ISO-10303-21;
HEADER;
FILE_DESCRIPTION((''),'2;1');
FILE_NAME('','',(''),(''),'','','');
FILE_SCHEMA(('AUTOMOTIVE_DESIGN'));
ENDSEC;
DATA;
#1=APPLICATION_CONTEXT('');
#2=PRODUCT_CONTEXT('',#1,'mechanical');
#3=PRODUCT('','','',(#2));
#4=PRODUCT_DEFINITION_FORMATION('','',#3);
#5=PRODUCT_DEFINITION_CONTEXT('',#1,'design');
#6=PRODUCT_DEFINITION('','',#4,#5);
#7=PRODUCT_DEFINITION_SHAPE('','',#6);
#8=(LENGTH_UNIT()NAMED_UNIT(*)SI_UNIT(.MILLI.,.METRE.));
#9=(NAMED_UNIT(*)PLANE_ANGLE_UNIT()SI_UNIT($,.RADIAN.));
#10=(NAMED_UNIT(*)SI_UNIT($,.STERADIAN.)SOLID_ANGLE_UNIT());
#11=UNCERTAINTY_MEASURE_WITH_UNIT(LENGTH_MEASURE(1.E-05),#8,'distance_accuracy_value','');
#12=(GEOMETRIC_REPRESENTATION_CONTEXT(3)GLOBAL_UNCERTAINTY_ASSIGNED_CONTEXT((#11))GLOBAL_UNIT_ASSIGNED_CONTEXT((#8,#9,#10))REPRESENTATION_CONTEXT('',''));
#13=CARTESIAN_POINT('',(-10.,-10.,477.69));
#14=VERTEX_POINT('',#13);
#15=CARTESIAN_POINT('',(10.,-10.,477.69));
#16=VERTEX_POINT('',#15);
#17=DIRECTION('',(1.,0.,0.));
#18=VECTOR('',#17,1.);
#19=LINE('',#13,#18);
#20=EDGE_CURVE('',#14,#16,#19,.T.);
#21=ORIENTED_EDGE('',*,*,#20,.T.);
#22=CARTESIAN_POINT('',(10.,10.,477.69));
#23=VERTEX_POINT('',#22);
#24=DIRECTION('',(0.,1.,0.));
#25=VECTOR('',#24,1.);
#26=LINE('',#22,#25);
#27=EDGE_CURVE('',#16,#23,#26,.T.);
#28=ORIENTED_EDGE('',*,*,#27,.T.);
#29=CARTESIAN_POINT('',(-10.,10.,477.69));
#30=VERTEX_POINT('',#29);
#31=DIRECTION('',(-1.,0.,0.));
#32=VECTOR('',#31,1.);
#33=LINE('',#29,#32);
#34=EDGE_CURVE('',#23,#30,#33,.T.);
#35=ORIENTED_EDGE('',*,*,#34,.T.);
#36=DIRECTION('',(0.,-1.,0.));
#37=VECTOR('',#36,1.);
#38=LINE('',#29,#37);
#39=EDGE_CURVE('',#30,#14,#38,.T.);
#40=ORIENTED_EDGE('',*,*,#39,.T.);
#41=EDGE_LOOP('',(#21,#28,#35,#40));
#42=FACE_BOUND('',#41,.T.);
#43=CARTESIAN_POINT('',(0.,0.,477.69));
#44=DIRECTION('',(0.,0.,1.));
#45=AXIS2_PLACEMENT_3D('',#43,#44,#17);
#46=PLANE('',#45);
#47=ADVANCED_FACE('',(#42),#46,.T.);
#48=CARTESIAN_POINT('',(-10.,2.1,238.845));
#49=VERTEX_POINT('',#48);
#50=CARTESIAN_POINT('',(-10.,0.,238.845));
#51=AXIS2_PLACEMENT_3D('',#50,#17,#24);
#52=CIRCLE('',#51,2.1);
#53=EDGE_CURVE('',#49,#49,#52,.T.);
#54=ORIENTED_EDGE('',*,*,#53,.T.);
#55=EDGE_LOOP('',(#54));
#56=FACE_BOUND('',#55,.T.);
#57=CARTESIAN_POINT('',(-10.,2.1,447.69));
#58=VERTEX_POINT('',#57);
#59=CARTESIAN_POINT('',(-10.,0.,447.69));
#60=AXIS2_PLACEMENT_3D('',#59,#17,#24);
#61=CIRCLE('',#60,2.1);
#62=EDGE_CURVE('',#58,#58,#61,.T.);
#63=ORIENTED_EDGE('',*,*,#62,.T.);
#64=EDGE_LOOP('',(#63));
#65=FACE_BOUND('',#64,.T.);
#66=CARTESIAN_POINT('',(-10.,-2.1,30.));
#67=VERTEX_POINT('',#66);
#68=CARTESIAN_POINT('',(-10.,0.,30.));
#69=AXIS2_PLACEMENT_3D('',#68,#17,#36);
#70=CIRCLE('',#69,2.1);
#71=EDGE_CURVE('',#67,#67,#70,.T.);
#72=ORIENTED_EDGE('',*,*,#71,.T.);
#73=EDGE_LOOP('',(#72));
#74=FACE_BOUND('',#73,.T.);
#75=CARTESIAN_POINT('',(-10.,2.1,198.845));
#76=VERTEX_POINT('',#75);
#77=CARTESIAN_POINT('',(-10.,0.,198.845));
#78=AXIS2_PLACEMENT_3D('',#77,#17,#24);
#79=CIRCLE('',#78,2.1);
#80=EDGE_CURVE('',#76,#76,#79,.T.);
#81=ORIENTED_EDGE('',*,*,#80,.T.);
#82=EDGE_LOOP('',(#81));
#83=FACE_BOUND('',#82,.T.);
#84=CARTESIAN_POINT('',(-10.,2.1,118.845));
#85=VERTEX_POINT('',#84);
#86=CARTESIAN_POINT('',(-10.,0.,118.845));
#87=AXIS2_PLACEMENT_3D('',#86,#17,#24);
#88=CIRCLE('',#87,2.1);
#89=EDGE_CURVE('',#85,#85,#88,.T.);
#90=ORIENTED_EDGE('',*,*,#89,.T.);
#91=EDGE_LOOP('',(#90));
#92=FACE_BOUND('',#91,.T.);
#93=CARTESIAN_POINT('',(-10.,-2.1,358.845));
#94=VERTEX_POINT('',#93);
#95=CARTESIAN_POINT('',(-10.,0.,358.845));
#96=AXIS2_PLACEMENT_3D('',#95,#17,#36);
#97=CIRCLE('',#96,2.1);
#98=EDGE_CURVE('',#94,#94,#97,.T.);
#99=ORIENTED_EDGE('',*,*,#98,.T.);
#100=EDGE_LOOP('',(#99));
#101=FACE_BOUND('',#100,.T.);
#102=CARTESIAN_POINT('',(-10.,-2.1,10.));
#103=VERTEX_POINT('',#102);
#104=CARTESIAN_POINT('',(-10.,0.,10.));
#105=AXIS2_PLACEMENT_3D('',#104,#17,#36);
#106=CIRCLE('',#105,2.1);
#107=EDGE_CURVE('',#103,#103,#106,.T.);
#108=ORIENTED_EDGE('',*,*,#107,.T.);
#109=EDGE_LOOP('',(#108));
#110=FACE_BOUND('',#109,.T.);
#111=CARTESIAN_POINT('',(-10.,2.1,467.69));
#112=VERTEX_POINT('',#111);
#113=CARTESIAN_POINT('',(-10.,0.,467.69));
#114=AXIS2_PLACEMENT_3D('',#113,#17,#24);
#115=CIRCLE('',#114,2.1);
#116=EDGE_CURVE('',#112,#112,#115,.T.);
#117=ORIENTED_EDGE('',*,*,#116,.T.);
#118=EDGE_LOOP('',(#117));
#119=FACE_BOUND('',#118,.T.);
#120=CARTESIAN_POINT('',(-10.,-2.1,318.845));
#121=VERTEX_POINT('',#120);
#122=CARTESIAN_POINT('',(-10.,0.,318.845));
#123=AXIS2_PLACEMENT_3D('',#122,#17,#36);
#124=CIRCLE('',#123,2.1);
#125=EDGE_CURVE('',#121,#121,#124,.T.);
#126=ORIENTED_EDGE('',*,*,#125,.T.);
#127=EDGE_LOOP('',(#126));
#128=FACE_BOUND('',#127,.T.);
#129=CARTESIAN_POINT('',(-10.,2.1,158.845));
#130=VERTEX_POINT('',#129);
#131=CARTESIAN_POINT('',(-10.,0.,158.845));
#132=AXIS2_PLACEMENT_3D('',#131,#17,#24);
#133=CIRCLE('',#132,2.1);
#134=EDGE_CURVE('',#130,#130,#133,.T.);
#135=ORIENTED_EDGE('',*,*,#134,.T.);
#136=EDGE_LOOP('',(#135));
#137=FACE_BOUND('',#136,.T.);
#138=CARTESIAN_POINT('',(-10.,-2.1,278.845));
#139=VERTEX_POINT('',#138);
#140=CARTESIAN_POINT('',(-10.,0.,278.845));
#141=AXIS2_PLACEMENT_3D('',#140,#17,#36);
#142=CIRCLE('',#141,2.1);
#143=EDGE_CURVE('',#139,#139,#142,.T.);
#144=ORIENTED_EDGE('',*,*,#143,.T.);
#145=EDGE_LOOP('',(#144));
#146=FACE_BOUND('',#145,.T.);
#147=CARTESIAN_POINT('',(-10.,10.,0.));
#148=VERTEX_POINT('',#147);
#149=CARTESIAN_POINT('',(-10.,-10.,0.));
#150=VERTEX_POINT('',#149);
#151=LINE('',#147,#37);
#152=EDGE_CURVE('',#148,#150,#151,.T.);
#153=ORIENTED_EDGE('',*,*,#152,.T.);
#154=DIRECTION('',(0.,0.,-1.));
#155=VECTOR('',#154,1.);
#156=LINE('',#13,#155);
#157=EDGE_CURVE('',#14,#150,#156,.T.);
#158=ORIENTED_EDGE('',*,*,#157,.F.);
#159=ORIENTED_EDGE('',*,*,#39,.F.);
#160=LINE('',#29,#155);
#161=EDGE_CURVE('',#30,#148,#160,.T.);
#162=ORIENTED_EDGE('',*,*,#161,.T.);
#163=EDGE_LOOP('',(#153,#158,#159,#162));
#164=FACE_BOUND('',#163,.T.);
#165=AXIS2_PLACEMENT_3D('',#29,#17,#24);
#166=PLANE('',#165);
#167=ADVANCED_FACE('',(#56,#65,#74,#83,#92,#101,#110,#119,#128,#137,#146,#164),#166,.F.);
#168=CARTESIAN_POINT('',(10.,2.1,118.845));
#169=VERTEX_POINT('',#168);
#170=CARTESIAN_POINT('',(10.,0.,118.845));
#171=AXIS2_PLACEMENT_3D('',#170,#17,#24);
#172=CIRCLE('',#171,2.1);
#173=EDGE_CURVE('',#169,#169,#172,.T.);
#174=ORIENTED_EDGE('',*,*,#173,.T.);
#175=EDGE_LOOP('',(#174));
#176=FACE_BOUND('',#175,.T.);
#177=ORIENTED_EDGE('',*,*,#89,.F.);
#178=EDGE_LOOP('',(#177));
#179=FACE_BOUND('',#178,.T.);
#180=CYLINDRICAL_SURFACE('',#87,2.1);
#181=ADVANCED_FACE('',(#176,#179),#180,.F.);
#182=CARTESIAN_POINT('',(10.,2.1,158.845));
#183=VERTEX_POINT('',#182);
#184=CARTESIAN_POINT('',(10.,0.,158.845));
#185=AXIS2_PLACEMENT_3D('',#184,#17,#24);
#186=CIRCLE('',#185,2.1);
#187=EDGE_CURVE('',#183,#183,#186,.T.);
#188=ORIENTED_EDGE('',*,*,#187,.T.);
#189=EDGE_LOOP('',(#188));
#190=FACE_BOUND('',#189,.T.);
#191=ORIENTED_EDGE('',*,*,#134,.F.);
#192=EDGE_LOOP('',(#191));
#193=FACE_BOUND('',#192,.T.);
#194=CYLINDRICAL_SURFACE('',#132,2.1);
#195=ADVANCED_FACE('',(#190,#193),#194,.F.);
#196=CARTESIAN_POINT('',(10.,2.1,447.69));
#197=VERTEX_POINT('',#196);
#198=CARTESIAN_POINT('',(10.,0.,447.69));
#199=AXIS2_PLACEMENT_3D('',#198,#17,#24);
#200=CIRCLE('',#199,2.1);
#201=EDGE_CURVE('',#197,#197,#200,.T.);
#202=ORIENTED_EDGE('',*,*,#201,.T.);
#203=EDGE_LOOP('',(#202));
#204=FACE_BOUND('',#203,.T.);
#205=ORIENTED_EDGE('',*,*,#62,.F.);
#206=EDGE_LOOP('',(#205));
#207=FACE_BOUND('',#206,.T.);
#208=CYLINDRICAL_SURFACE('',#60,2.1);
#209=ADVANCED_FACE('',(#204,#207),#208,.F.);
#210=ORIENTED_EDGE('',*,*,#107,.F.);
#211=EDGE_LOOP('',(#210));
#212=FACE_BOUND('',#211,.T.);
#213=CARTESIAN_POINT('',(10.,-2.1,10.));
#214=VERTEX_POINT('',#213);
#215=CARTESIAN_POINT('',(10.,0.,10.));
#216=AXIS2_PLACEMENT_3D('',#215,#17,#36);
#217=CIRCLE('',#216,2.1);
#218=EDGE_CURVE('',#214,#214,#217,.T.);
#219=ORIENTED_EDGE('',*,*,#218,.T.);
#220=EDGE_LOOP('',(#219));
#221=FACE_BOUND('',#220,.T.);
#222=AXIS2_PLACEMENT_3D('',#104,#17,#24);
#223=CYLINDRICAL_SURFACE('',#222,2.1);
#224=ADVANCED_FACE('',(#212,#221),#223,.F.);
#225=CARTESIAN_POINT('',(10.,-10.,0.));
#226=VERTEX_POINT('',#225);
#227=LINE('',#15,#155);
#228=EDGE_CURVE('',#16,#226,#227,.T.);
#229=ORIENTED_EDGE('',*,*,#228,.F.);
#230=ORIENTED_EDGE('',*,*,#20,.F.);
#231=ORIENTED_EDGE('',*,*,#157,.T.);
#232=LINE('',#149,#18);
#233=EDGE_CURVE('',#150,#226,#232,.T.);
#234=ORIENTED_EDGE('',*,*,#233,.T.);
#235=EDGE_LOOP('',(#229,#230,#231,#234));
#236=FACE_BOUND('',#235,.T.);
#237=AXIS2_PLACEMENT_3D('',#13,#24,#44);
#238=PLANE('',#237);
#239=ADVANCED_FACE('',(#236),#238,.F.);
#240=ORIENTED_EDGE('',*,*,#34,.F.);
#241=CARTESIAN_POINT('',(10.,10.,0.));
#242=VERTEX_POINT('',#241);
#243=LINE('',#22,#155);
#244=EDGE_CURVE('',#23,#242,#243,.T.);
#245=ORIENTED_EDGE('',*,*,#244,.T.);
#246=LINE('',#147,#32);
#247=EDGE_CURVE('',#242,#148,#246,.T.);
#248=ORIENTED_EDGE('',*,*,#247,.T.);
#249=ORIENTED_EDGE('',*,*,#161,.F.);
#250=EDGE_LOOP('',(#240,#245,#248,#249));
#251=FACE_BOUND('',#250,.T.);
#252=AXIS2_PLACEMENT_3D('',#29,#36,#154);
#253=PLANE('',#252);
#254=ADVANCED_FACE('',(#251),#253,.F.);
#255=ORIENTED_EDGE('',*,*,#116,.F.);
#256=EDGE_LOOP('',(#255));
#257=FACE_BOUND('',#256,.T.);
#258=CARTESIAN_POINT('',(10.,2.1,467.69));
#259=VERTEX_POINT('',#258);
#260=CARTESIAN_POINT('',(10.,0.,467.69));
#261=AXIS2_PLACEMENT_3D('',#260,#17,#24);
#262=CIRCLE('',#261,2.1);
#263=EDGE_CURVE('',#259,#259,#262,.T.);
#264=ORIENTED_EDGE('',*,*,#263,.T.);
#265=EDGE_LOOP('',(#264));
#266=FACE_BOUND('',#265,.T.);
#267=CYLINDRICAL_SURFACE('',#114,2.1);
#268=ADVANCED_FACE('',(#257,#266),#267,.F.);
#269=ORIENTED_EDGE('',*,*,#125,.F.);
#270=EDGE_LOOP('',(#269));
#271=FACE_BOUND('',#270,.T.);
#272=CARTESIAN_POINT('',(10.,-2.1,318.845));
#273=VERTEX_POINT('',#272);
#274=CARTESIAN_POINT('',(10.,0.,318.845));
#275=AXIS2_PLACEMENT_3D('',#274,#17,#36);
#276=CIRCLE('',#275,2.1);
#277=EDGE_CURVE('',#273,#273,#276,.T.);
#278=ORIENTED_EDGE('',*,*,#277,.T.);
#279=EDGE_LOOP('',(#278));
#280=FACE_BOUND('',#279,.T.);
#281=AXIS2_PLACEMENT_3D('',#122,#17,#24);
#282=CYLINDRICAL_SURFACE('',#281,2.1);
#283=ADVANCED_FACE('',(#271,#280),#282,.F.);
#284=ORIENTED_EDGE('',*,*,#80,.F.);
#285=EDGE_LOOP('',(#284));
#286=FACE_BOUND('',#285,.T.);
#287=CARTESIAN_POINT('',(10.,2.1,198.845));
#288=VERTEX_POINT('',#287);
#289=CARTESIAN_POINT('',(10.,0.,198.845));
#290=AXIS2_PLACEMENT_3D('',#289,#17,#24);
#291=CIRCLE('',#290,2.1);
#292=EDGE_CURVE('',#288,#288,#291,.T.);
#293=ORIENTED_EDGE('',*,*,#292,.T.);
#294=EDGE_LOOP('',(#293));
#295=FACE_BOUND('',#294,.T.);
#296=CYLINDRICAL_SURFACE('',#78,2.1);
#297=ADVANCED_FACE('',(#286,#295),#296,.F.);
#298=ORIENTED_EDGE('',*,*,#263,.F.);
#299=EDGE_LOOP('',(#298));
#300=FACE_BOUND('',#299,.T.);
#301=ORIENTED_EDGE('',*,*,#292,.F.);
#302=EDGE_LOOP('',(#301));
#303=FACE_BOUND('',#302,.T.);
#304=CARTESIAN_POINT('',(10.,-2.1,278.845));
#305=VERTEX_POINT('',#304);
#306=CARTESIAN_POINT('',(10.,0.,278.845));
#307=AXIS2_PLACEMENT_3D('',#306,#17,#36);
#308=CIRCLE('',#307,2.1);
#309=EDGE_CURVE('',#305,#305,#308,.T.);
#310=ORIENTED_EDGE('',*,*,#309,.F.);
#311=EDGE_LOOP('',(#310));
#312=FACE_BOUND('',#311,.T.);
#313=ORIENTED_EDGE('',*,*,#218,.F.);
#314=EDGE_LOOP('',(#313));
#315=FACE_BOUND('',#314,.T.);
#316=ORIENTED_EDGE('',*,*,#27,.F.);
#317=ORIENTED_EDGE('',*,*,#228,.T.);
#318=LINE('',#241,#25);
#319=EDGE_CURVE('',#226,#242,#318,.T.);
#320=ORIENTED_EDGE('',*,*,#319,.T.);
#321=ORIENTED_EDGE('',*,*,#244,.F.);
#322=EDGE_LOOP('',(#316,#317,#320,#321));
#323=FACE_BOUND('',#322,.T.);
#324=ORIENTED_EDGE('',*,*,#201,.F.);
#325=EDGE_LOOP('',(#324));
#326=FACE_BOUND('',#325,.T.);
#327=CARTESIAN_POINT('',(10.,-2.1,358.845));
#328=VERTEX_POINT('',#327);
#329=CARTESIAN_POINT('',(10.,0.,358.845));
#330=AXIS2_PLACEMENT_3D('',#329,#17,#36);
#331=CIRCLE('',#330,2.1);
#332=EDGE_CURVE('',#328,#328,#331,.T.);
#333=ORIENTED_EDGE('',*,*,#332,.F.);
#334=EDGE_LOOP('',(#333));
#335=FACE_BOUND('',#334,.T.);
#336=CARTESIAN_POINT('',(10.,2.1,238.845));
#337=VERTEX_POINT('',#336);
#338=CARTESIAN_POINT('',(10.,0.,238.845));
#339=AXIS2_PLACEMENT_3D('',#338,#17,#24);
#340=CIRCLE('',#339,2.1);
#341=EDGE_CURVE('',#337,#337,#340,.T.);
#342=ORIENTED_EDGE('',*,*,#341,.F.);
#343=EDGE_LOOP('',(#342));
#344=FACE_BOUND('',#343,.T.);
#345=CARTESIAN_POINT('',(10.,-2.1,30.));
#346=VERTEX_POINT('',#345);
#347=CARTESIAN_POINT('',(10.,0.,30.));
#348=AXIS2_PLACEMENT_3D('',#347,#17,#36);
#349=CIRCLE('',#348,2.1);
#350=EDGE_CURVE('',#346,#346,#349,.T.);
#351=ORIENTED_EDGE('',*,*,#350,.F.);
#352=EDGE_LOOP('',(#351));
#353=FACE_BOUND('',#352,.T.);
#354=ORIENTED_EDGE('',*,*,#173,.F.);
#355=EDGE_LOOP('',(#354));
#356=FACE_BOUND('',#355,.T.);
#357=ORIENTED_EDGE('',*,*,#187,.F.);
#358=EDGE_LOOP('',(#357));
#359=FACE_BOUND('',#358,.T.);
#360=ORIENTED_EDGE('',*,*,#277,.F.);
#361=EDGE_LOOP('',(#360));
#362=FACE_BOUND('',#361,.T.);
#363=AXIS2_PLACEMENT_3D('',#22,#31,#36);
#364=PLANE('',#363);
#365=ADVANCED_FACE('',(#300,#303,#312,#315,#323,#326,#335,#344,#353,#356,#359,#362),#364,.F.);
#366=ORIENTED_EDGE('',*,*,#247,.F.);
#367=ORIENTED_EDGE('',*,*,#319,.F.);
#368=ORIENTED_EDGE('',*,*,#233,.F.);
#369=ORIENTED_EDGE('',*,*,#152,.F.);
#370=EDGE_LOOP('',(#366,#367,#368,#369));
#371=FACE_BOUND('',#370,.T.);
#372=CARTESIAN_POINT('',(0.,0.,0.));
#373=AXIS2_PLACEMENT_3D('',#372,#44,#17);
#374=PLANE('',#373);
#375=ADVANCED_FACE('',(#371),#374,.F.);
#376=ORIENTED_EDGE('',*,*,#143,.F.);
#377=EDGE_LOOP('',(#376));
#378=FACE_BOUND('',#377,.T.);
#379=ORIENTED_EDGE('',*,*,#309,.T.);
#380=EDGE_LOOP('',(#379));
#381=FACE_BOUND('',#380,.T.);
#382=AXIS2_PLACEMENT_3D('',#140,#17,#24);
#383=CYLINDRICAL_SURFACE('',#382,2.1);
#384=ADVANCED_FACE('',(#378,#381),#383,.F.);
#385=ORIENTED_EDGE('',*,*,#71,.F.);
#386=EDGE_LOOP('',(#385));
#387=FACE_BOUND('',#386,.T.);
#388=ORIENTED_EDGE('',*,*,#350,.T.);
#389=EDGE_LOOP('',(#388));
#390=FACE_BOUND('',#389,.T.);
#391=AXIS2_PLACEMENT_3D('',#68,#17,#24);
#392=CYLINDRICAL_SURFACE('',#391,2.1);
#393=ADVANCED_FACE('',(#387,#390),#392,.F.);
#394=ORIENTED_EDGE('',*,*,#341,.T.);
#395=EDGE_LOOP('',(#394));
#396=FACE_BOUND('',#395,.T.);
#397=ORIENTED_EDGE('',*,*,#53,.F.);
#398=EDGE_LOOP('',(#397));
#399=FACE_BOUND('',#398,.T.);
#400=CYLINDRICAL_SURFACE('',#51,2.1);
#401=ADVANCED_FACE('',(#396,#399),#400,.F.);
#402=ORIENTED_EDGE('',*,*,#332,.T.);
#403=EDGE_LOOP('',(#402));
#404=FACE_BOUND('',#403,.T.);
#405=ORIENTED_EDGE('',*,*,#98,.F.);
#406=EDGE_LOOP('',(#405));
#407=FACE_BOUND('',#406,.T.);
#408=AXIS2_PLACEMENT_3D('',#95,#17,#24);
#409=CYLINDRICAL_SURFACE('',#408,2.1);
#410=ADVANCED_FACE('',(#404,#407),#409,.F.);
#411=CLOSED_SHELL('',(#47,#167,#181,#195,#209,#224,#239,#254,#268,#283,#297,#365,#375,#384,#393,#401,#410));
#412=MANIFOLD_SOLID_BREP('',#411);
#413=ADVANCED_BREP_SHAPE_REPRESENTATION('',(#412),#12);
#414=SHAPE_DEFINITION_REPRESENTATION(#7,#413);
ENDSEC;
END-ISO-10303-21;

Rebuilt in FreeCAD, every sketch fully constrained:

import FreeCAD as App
import Part
import Sketcher

V = App.Vector


def add_polygon(sketch, points):
    """Adds a closed chain of lines whose ends are joined by coincident constraints."""
    first, n = sketch.GeometryCount, len(points)
    for a, b in zip(points, points[1:] + points[:1]):
        sketch.addGeometry(Part.LineSegment(App.Vector(*a, 0), App.Vector(*b, 0)), False)
    for i in range(n):
        sketch.addConstraint(Sketcher.Constraint("Coincident", first + i, 2, first + (i + 1) % n, 1))

doc = App.newDocument("Part")
params = doc.addObject("Spreadsheet::Sheet", "Params")
for row, (alias, value) in enumerate([
    ("sketch1_width", "20 mm"),
    ("pad1_length", "477.69 mm"),
    ("sketch2_diameter", "4.2 mm"),
    ("sketch3_diameter", "4.2 mm"),
], start=1):
    params.set(f"A{row}", alias)
    params.set(f"B{row}", "=" + value)
    params.setAlias(f"B{row}", alias)

body = doc.addObject("PartDesign::Body", "Body")

# Sketch on XY plane
sketch1 = body.newObject("Sketcher::SketchObject", "Sketch")
sketch1.AttachmentSupport = (doc.getObject("XY_Plane"), [""])
sketch1.MapMode = "FlatFace"
add_polygon(sketch1, [(-10, 10), (-10, -10), (10, -10), (10, 10)])  # lines 0-3
sketch1.addConstraint([
    Sketcher.Constraint("Vertical", 0),
    Sketcher.Constraint("Horizontal", 1),
    Sketcher.Constraint("Vertical", 2),
    Sketcher.Constraint("Horizontal", 3),
    Sketcher.Constraint("Symmetric", 0, 2, 2, 2, -1, 1),
    Sketcher.Constraint("Equal", 3, 0),
    Sketcher.Constraint("DistanceX", 1, 1, 1, 2, 20.0),
])
sketch1.setExpression("Constraints[10]", "Params.sketch1_width")
pad1 = body.newObject("PartDesign::Pad", "Pad")
pad1.Profile = sketch1
pad1.setExpression("Length", "Params.pad1_length")

# Sketch on YZ plane
sketch2 = body.newObject("Sketcher::SketchObject", "Sketch001")
sketch2.AttachmentSupport = (doc.getObject("YZ_Plane"), [""])
sketch2.MapMode = "FlatFace"
sketch2.AttachmentOffset = App.Placement(V(0, 0, 10), App.Rotation())
sketch2.addGeometry([
    Part.Circle(V(0, 467.7, 0), V(0, 0, 1), 2.1),
    Part.Circle(V(0, 447.7, 0), V(0, 0, 1), 2.1),
    Part.Circle(V(0, 10, 0), V(0, 0, 1), 2.1),
    Part.Circle(V(0, 30, 0), V(0, 0, 1), 2.1),
], False)
sketch2.addConstraint([
    Sketcher.Constraint("Equal", 0, 1),
    Sketcher.Constraint("Equal", 1, 2),
    Sketcher.Constraint("Equal", 2, 3),
    Sketcher.Constraint("PointOnObject", 0, 3, -2),
    Sketcher.Constraint("PointOnObject", 1, 3, -2),
    Sketcher.Constraint("PointOnObject", 2, 3, -2),
    Sketcher.Constraint("PointOnObject", 3, 3, -2),
    Sketcher.Constraint("Diameter", 0, 4.2),
    Sketcher.Constraint("DistanceY", -1, 1, 2, 3, 10.0),
    Sketcher.Constraint("DistanceY", -1, 1, 3, 3, 30.0),
    Sketcher.Constraint("DistanceY", 1, 3, 0, 3, 20.0),
    Sketcher.Constraint("DistanceY", -1, 1, 0, 3, 467.69),
])
sketch2.setExpression("Constraints[7]", "Params.sketch2_diameter")
pocket1 = body.newObject("PartDesign::Pocket", "Pocket")
pocket1.Profile = sketch2
pocket1.Type = "ThroughAll"

# Sketch on YZ plane
sketch3 = body.newObject("Sketcher::SketchObject", "Sketch002")
sketch3.AttachmentSupport = (doc.getObject("YZ_Plane"), [""])
sketch3.MapMode = "FlatFace"
sketch3.AttachmentOffset = App.Placement(V(0, 0, 10), App.Rotation())
sketch3.addGeometry([
    Part.Circle(V(0, 238.8, 0), V(0, 0, 1), 2.1),  # 0
    Part.Circle(V(0, 198.8, 0), V(0, 0, 1), 2.1),  # 1
    Part.Circle(V(0, 158.8, 0), V(0, 0, 1), 2.1),  # 2
    Part.Circle(V(0, 118.8, 0), V(0, 0, 1), 2.1),  # 3
    Part.Circle(V(0, 358.8, 0), V(0, 0, 1), 2.1),  # 4
    Part.Circle(V(0, 318.8, 0), V(0, 0, 1), 2.1),  # 5
    Part.Circle(V(0, 278.8, 0), V(0, 0, 1), 2.1),  # 6
], False)
sketch3.addConstraint([
    Sketcher.Constraint("Equal", 0, 1),
    Sketcher.Constraint("Equal", 1, 2),
    Sketcher.Constraint("Equal", 2, 3),
    Sketcher.Constraint("Equal", 3, 4),
    Sketcher.Constraint("Equal", 4, 5),
    Sketcher.Constraint("Equal", 5, 6),
    Sketcher.Constraint("PointOnObject", 0, 3, -2),
    Sketcher.Constraint("PointOnObject", 1, 3, -2),
    Sketcher.Constraint("PointOnObject", 2, 3, -2),
    Sketcher.Constraint("PointOnObject", 3, 3, -2),
    Sketcher.Constraint("PointOnObject", 4, 3, -2),
    Sketcher.Constraint("PointOnObject", 5, 3, -2),
    Sketcher.Constraint("PointOnObject", 6, 3, -2),
    Sketcher.Constraint("Diameter", 0, 4.2),
    Sketcher.Constraint("DistanceY", 1, 3, 0, 3, 40.0),
    Sketcher.Constraint("DistanceY", 2, 3, 1, 3, 40.0),
    Sketcher.Constraint("DistanceY", 3, 3, 2, 3, 40.0),
    Sketcher.Constraint("DistanceY", 0, 3, 4, 3, 120.0),
    Sketcher.Constraint("DistanceY", 5, 3, 4, 3, 40.0),
    Sketcher.Constraint("DistanceY", 6, 3, 5, 3, 40.0),
    Sketcher.Constraint("DistanceY", -1, 1, 0, 3, 238.845),
])
sketch3.setExpression("Constraints[13]", "Params.sketch3_diameter")
pocket2 = body.newObject("PartDesign::Pocket", "Pocket001")
pocket2.Profile = sketch3
pocket2.Type = "ThroughAll"

doc.recompute()
